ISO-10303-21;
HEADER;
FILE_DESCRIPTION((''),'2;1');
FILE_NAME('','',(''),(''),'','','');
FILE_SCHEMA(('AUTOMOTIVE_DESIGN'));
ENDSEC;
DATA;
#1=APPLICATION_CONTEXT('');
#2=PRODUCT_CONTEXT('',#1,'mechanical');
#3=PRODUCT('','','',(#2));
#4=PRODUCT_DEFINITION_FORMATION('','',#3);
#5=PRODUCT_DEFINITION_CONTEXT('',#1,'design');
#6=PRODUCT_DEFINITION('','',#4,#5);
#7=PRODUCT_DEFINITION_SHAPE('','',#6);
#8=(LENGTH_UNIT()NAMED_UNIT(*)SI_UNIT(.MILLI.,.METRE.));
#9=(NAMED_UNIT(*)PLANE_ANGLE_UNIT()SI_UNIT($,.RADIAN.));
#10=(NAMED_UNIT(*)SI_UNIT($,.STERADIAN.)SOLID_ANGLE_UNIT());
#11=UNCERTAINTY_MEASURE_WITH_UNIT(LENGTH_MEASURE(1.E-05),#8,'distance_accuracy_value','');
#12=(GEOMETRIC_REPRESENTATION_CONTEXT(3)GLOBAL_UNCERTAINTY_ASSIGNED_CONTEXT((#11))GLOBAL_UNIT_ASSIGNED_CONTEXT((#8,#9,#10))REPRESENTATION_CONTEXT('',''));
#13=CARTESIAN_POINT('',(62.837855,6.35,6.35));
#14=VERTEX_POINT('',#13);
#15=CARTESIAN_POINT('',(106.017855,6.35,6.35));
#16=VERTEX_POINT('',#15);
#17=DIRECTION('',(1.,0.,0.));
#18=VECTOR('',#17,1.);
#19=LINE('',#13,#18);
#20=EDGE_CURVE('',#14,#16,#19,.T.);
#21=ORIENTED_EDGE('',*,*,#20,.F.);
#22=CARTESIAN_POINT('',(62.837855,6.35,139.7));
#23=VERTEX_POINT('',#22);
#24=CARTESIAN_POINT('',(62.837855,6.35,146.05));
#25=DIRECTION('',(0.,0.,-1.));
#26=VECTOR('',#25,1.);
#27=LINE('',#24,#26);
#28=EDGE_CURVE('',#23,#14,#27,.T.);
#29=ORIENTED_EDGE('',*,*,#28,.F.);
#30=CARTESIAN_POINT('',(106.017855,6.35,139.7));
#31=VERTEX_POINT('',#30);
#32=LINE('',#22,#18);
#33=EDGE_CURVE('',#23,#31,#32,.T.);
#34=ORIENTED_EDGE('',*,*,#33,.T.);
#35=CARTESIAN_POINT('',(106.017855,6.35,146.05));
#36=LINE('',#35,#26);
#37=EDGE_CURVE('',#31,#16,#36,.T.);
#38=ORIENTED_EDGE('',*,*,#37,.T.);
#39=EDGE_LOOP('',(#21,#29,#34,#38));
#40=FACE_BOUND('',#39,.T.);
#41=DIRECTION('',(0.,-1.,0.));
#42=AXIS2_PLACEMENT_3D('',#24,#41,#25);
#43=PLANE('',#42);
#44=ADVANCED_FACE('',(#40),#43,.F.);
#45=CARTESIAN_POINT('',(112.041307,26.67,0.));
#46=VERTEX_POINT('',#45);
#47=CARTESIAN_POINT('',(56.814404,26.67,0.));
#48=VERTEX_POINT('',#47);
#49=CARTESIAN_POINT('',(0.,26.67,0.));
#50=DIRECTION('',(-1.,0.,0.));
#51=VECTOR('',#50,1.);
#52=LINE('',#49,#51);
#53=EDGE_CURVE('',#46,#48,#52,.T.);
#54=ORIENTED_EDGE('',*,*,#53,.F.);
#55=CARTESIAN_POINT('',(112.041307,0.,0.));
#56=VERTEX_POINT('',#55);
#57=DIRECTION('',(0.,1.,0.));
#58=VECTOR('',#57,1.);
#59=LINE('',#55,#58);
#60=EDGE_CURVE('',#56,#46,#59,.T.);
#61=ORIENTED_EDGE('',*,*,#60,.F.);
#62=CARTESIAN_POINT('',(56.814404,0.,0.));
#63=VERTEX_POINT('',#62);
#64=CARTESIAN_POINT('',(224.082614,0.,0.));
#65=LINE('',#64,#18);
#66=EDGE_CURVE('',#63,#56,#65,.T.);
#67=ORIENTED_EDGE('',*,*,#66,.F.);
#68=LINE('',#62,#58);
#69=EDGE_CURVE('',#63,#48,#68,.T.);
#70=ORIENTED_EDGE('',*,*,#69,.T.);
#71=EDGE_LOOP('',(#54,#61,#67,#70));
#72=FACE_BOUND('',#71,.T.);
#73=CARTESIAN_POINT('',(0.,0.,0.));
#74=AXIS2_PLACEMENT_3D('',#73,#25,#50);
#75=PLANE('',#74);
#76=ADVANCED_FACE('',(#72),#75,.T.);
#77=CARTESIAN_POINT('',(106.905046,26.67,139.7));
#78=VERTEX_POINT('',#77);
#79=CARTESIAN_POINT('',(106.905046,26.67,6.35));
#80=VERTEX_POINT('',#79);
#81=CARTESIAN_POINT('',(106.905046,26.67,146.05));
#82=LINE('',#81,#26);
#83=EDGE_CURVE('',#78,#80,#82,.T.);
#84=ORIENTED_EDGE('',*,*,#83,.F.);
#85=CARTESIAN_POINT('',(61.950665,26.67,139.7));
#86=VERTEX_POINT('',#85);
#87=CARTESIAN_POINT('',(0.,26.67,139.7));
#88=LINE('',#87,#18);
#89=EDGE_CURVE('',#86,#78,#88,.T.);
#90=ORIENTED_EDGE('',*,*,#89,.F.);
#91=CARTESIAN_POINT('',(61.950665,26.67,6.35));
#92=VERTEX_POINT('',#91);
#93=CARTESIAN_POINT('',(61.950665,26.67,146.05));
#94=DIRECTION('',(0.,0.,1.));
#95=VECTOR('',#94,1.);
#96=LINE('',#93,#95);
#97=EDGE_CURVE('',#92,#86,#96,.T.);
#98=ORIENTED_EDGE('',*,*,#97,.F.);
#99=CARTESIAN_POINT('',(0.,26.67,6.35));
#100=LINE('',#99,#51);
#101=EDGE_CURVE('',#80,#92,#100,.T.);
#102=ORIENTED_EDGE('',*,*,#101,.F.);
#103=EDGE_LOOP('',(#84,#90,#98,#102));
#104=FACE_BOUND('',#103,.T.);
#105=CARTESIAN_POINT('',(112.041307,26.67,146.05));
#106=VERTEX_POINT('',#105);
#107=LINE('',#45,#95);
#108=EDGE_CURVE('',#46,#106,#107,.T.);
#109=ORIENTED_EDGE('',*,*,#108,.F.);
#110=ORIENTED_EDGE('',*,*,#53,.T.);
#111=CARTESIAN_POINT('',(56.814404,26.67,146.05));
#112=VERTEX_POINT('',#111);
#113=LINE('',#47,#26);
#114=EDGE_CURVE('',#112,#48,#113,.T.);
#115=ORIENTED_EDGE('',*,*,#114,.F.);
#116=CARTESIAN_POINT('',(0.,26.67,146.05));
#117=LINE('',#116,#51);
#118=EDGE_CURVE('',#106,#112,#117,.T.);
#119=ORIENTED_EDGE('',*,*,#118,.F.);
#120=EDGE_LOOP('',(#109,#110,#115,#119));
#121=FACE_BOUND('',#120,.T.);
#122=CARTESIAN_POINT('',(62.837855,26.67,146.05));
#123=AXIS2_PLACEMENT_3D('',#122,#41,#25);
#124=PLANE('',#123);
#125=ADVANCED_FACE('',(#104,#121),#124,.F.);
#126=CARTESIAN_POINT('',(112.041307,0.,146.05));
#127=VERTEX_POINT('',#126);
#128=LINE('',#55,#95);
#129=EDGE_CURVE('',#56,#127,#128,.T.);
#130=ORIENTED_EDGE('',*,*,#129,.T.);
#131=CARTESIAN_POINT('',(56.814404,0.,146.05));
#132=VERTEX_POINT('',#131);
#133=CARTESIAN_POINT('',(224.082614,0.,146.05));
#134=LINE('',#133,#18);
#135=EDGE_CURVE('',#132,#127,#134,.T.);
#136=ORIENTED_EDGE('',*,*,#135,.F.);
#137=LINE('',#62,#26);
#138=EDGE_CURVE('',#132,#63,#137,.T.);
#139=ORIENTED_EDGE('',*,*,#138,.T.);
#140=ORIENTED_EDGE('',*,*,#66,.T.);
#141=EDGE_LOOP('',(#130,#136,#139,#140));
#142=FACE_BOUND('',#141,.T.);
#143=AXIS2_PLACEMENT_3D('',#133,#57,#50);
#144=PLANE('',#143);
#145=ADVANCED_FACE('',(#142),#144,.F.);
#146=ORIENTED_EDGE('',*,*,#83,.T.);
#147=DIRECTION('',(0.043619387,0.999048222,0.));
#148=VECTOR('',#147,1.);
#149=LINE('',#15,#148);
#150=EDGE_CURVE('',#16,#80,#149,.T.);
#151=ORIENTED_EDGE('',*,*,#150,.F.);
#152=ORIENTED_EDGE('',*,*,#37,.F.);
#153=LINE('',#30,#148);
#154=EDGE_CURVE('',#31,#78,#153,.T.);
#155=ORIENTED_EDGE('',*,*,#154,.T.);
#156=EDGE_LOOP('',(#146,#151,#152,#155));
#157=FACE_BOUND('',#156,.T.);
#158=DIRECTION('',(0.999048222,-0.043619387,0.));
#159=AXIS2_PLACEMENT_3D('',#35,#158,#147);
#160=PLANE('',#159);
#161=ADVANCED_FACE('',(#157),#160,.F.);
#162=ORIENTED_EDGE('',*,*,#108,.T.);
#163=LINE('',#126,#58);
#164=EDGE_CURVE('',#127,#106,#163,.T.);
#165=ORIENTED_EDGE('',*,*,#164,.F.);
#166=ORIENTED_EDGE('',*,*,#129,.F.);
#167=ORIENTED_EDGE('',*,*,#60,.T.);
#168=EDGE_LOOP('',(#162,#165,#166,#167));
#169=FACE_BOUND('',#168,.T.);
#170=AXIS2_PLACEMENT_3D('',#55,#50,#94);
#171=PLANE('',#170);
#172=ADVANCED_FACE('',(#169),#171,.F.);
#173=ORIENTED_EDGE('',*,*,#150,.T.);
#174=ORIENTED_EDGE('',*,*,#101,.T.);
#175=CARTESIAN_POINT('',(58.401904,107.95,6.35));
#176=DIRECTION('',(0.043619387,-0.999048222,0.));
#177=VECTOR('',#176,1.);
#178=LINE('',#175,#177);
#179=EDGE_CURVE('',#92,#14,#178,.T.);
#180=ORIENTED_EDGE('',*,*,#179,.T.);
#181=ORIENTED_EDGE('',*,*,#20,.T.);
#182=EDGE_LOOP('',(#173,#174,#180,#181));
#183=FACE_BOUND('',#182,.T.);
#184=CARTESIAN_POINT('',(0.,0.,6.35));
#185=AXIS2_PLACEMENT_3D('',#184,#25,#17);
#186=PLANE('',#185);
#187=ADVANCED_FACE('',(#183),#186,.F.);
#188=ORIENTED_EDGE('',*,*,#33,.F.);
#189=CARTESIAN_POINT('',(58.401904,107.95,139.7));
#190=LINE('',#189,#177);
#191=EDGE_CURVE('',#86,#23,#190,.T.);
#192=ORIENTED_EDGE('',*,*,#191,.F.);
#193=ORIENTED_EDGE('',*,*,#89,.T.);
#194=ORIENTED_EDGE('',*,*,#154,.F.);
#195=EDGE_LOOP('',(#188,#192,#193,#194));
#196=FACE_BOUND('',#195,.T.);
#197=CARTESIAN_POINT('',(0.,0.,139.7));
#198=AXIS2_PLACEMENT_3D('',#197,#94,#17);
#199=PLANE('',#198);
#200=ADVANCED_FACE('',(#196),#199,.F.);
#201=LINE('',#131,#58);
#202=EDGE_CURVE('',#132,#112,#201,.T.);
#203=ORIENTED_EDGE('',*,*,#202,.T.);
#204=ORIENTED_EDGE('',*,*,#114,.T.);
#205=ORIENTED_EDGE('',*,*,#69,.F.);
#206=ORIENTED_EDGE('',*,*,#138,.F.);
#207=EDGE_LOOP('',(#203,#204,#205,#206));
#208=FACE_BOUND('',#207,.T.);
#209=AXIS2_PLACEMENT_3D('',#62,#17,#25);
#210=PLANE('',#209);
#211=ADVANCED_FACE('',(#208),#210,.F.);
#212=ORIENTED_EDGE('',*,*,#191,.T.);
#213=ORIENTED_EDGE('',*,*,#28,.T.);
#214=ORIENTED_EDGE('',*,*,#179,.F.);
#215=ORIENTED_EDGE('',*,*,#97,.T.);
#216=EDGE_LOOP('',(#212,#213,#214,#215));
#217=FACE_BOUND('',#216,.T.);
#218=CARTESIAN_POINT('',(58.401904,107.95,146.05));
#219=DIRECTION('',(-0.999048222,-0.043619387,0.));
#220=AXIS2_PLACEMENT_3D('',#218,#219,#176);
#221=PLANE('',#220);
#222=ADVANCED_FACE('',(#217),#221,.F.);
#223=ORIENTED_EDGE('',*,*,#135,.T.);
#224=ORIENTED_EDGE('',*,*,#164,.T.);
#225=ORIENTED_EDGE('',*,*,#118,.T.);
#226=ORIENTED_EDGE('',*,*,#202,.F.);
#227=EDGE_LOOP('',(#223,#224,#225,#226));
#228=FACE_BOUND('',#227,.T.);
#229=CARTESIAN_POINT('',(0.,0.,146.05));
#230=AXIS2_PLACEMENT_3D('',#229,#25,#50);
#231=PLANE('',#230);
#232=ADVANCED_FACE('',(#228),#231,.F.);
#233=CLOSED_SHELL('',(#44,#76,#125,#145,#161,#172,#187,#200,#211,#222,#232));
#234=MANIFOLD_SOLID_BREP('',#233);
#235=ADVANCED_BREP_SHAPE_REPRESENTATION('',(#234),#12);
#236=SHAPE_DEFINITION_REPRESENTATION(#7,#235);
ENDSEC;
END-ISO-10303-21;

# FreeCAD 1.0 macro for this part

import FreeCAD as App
import Part
import Sketcher
from FreeCAD import Vector
Q = App.Units.Quantity


def add_polygon(sketch, points):
    """Adds a closed chain of lines whose ends are joined by coincident constraints."""
    first, n = sketch.GeometryCount, len(points)
    for a, b in zip(points, points[1:] + points[:1]):
        sketch.addGeometry(Part.LineSegment(App.Vector(*a, 0), App.Vector(*b, 0)), False)
    for i in range(n):
        sketch.addConstraint(Sketcher.Constraint("Coincident", first + i, 2, first + (i + 1) % n, 1))

doc = App.newDocument("Part")
body = doc.addObject("PartDesign::Body", "Body")

# Sketch on XY plane
sketch1 = doc.addObject("Sketcher::SketchObject", "Sketch")
body.addObject(sketch1)
sketch1.AttachmentSupport = (doc.XY_Plane, [""])
sketch1.MapMode = "FlatFace"
add_polygon(sketch1, [(0, 107.95), (0, 0), (224.082614, 0), (224.082614, 107.95), (220.907614, 107.95), (216.471663, 6.35), (173.291663, 6.35), (168.855711, 107.95), (165.680711, 107.95), (161.244759, 6.35), (118.064759, 6.35), (113.628807, 107.95), (110.453807, 107.95), (106.017855, 6.35), (62.837855, 6.35), (58.401904, 107.95), (55.226904, 107.95), (50.790952, 6.35), (7.610952, 6.35), (3.175, 107.95)])  # lines 0-19
sketch1.addConstraint([
    Sketcher.Constraint("Vertical", 0),
    Sketcher.Constraint("Horizontal", 1),
    Sketcher.Constraint("Vertical", 2),
    Sketcher.Constraint("Horizontal", 3),
    Sketcher.Constraint("Horizontal", 5),
    Sketcher.Constraint("Horizontal", 7),
    Sketcher.Constraint("Horizontal", 9),
    Sketcher.Constraint("Horizontal", 11),
    Sketcher.Constraint("Horizontal", 13),
    Sketcher.Constraint("Horizontal", 15),
    Sketcher.Constraint("Horizontal", 17),
    Sketcher.Constraint("Horizontal", 19),
    Sketcher.Constraint("Coincident", 0, 2, -1, 1),
    Sketcher.Constraint("Parallel", 4, 8),
    Sketcher.Constraint("Parallel", 6, 10),
    Sketcher.Constraint("Parallel", 8, 12),
    Sketcher.Constraint("Parallel", 10, 14),
    Sketcher.Constraint("Parallel", 12, 16),
    Sketcher.Constraint("Parallel", 14, 18),
    Sketcher.Constraint("Horizontal", 3, 2, 6, 2),
    Sketcher.Constraint("Horizontal", 5, 2, 8, 2),
    Sketcher.Constraint("Horizontal", 7, 2, 10, 2),
    Sketcher.Constraint("Horizontal", 9, 2, 12, 2),
    Sketcher.Constraint("Horizontal", 11, 2, 14, 2),
    Sketcher.Constraint("Horizontal", 13, 2, 16, 2),
    Sketcher.Constraint("Horizontal", 15, 2, 18, 2),
    Sketcher.Constraint("Equal", 3, 7),
    Sketcher.Constraint("Equal", 5, 9),
    Sketcher.Constraint("Equal", 7, 11),
    Sketcher.Constraint("Equal", 9, 13),
    Sketcher.Constraint("Equal", 11, 15),
    Sketcher.Constraint("Equal", 13, 17),
    Sketcher.Constraint("Equal", 15, 19),
    Sketcher.Constraint("Equal", 4, 6),
    Sketcher.Constraint("DistanceX", 5, 2, 5, 1, Q("1.7 in")),
    Sketcher.Constraint("DistanceY", 4, 2, 3, 2, Q("4 in")),
    Sketcher.Constraint("DistanceY", 0, 2, 0, 1, Q("4.25 in")),
    Sketcher.Constraint("Angle", 4, Q("-92.5 deg")),
    Sketcher.Constraint("DistanceX", 3, 2, 3, 1, Q("0.125 in")),
])
pad1 = doc.addObject("PartDesign::Pad", "Pad")
body.addObject(pad1)
pad1.Profile = sketch1
pad1.Length = Q("5.75 in")

# Sketch on XY plane
sketch2 = doc.addObject("Sketcher::SketchObject", "Sketch001")
body.addObject(sketch2)
sketch2.AttachmentSupport = (doc.XY_Plane, [""])
sketch2.MapMode = "FlatFace"
sketch2.AttachmentOffset = App.Placement(Vector(0, 0, 5.75 * 25.4), App.Rotation())
add_polygon(sketch2, [(55.226904, 107.95), (3.175, 107.95), (7.610952, 6.35), (50.790952, 6.35)])  # lines 0-3
add_polygon(sketch2, [(58.401904, 107.95), (62.837855, 6.35), (106.017855, 6.35), (110.453807, 107.95)])  # lines 4-7
add_polygon(sketch2, [(113.628807, 107.95), (118.064759, 6.35), (161.244759, 6.35), (165.680711, 107.95)])  # lines 8-11
add_polygon(sketch2, [(168.855711, 107.95), (173.291663, 6.35), (216.471663, 6.35), (220.907614, 107.95)])  # lines 12-15
sketch2.addConstraint([
    Sketcher.Constraint("Horizontal", 0),
    Sketcher.Constraint("Horizontal", 2),
    Sketcher.Constraint("Horizontal", 5),
    Sketcher.Constraint("Horizontal", 7),
    Sketcher.Constraint("Horizontal", 9),
    Sketcher.Constraint("Horizontal", 11),
    Sketcher.Constraint("Horizontal", 13),
    Sketcher.Constraint("Horizontal", 15),
    Sketcher.Constraint("Parallel", 1, 4),
    Sketcher.Constraint("Parallel", 3, 6),
    Sketcher.Constraint("Parallel", 4, 8),
    Sketcher.Constraint("Parallel", 6, 10),
    Sketcher.Constraint("Parallel", 8, 12),
    Sketcher.Constraint("Parallel", 10, 14),
    Sketcher.Constraint("Horizontal", 2, 2, 4, 2),
    Sketcher.Constraint("Horizontal", 3, 2, 6, 2),
    Sketcher.Constraint("Horizontal", 5, 2, 8, 2),
    Sketcher.Constraint("Horizontal", 7, 2, 10, 2),
    Sketcher.Constraint("Horizontal", 9, 2, 12, 2),
    Sketcher.Constraint("Horizontal", 11, 2, 14, 2),
    Sketcher.Constraint("Equal", 2, 5),
    Sketcher.Constraint("Equal", 5, 9),
    Sketcher.Constraint("Equal", 9, 13),
    Sketcher.Constraint("Equal", 1, 3),
    Sketcher.Constraint("DistanceX", 2, 1, 2, 2, Q("1.7 in")),
    Sketcher.Constraint("DistanceY", 1, 2, 0, 2, Q("4 in")),
    Sketcher.Constraint("Angle", 1, Q("-87.5 deg")),
    Sketcher.Constraint("DistanceY", -1, 1, 0, 2, Q("4.25 in")),
    Sketcher.Constraint("DistanceX", -1, 1, 0, 2, Q("0.125 in")),
    Sketcher.Constraint("DistanceX", 3, 2, 7, 2, Q("0.125 in")),
    Sketcher.Constraint("DistanceX", 6, 2, 11, 2, Q("0.125 in")),
    Sketcher.Constraint("DistanceX", 10, 2, 15, 2, Q("0.125 in")),
])
pad2 = doc.addObject("PartDesign::Pad", "Pad001")
body.addObject(pad2)
pad2.Profile = sketch2
pad2.Length = Q("0.25 in")
pad2.Reversed = True
doc.recompute()

datumplane = doc.addObject("PartDesign::Plane", "DatumPlane")
body.addObject(datumplane)
datumplane.AttachmentSupport = (doc.XY_Plane, [""])
datumplane.MapMode = "FlatFace"
datumplane.AttachmentOffset = App.Placement(Vector(0, 0, 2.875 * 25.4), App.Rotation())
mirrored = doc.addObject("PartDesign::Mirrored", "Mirrored")
body.addObject(mirrored)
mirrored.Originals = [pad2]
mirrored.MirrorPlane = (datumplane, [""])
body.Tip = mirrored

# Sketch on XZ plane
sketch3 = doc.addObject("Sketcher::SketchObject", "Sketch002")
body.addObject(sketch3)
sketch3.AttachmentSupport = (doc.XZ_Plane, [""])
sketch3.MapMode = "FlatFace"
sketch3.AttachmentOffset = App.Placement(Vector(0, 0, -4.25 * 25.4), App.Rotation())
add_polygon(sketch3, [(-24.210776, -38.141343), (-24.210776, 174.01689), (250.180537, 174.01689), (250.180537, -38.141343)])  # lines 0-3
sketch3.addConstraint([
    Sketcher.Constraint("Vertical", 0),
    Sketcher.Constraint("Horizontal", 1),
    Sketcher.Constraint("Vertical", 2),
    Sketcher.Constraint("Horizontal", 3),
    Sketcher.Constraint("DistanceX", 1, 1, 1, 2, 274.391314),
    Sketcher.Constraint("DistanceY", 0, 1, 0, 2, 212.158232),
    Sketcher.Constraint("DistanceY", -1, 1, 0, 2, 174.01689),
    Sketcher.Constraint("DistanceX", 0, 2, -1, 1, 24.210776),
])
pocket1 = doc.addObject("PartDesign::Pocket", "Pocket")
body.addObject(pocket1)
pocket1.Profile = sketch3
pocket1.Length = Q("3.2 in")
pocket1.Reversed = True

# Sketch on XZ plane
sketch4 = doc.addObject("Sketcher::SketchObject", "Sketch003")
body.addObject(sketch4)
sketch4.AttachmentSupport = (doc.XZ_Plane, [""])
sketch4.MapMode = "FlatFace"
sketch4.AttachmentOffset = App.Placement(Vector(0, 0, -1.05 * 25.4), App.Rotation())
add_polygon(sketch4, [(0, 0), (0, 146.05), (56.814404, 146.05), (56.814404, 0)])  # lines 0-3
add_polygon(sketch4, [(112.041307, 0), (112.041307, 146.05), (224.082614, 146.05), (224.082614, 0)])  # lines 4-7
sketch4.addConstraint([
    Sketcher.Constraint("Vertical", 0),
    Sketcher.Constraint("Horizontal", 1),
    Sketcher.Constraint("Vertical", 2),
    Sketcher.Constraint("Horizontal", 3),
    Sketcher.Constraint("Vertical", 4),
    Sketcher.Constraint("Horizontal", 5),
    Sketcher.Constraint("Vertical", 6),
    Sketcher.Constraint("Horizontal", 7),
    Sketcher.Constraint("Coincident", 3, 2, -1, 1),
    Sketcher.Constraint("PointOnObject", 6, 2, -1),
    Sketcher.Constraint("Horizontal", 1, 2, 4, 2),
    Sketcher.Constraint("DistanceY", 0, 1, 0, 2, Q("5.75 in")),
    Sketcher.Constraint("DistanceX", 1, 1, 1, 2, 56.814404),
    Sketcher.Constraint("DistanceX", 5, 1, 5, 2, 112.041307),
    Sketcher.Constraint("DistanceX", 1, 2, 5, 2, 167.268211),
])
pocket2 = doc.addObject("PartDesign::Pocket", "Pocket001")
body.addObject(pocket2)
pocket2.Profile = sketch4
pocket2.Type = "ThroughAll"
pocket2.Reversed = True

doc.recompute()
